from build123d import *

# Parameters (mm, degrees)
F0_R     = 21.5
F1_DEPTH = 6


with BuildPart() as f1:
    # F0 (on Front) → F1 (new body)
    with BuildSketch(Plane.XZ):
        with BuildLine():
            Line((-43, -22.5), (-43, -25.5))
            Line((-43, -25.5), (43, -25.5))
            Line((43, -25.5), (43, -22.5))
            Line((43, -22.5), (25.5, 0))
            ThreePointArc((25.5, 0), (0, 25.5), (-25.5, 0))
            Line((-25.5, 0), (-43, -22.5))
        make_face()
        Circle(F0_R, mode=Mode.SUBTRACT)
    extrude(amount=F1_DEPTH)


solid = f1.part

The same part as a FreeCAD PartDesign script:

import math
import FreeCAD as App
import Part
import Sketcher
from FreeCAD import Vector
Q = App.Units.Quantity

doc = App.newDocument("Part")
body = doc.addObject("PartDesign::Body", "Body")

# Sketch on XZ plane
sketch1 = doc.addObject("Sketcher::SketchObject", "Sketch")
body.addObject(sketch1)
sketch1.AttachmentSupport = (doc.XZ_Plane, [""])
sketch1.MapMode = "FlatFace"
sketch1.addGeometry([
    Part.LineSegment(Vector(-43, -22.5, 0), Vector(-43, -25.5, 0)),  # 0
    Part.LineSegment(Vector(-43, -25.5, 0), Vector(43, -25.5, 0)),  # 1
    Part.LineSegment(Vector(43, -25.5, 0), Vector(43, -22.5, 0)),  # 2
    Part.LineSegment(Vector(43, -22.5, 0), Vector(25.5, 0, 0)),  # 3
    Part.ArcOfCircle(Part.Circle(Vector(0, 0, 0), Vector(0, 0, 1), 25.5), math.radians(0), math.radians(180)),  # 4
    Part.LineSegment(Vector(-25.5, 0, 0), Vector(-43, -22.5, 0)),  # 5
    Part.Circle(Vector(0, 0, 0), Vector(0, 0, 1), 21.5),  # 6
], False)
sketch1.addConstraint([
    Sketcher.Constraint("Coincident", 0, 2, 1, 1),
    Sketcher.Constraint("Coincident", 1, 2, 2, 1),
    Sketcher.Constraint("Coincident", 2, 2, 3, 1),
    Sketcher.Constraint("Coincident", 3, 2, 4, 1),
    Sketcher.Constraint("Coincident", 4, 2, 5, 1),
    Sketcher.Constraint("Coincident", 5, 2, 0, 1),
    Sketcher.Constraint("Vertical", 0),
    Sketcher.Constraint("Horizontal", 1),
    Sketcher.Constraint("Vertical", 2),
    Sketcher.Constraint("Coincident", 4, 3, -1, 1),
    Sketcher.Constraint("Coincident", 6, 3, -1, 1),
    Sketcher.Constraint("Symmetric", 2, 2, 5, 2, -2),
    Sketcher.Constraint("PointOnObject", 3, 2, -1),
    Sketcher.Constraint("PointOnObject", 4, 2, -1),
    Sketcher.Constraint("Diameter", 6, Q("43 mm")),
    Sketcher.Constraint("Radius", 4, Q("25.5 mm")),
    Sketcher.Constraint("DistanceX", 1, 1, 1, 2, Q("86 mm")),
    Sketcher.Constraint("DistanceY", 0, 2, 0, 1, Q("3 mm")),
    Sketcher.Constraint("DistanceY", 0, 2, -1, 1, Q("25.5 mm")),
])
pad1 = doc.addObject("PartDesign::Pad", "Pad")
body.addObject(pad1)
pad1.Profile = sketch1
pad1.Length = 6

doc.recompute()
